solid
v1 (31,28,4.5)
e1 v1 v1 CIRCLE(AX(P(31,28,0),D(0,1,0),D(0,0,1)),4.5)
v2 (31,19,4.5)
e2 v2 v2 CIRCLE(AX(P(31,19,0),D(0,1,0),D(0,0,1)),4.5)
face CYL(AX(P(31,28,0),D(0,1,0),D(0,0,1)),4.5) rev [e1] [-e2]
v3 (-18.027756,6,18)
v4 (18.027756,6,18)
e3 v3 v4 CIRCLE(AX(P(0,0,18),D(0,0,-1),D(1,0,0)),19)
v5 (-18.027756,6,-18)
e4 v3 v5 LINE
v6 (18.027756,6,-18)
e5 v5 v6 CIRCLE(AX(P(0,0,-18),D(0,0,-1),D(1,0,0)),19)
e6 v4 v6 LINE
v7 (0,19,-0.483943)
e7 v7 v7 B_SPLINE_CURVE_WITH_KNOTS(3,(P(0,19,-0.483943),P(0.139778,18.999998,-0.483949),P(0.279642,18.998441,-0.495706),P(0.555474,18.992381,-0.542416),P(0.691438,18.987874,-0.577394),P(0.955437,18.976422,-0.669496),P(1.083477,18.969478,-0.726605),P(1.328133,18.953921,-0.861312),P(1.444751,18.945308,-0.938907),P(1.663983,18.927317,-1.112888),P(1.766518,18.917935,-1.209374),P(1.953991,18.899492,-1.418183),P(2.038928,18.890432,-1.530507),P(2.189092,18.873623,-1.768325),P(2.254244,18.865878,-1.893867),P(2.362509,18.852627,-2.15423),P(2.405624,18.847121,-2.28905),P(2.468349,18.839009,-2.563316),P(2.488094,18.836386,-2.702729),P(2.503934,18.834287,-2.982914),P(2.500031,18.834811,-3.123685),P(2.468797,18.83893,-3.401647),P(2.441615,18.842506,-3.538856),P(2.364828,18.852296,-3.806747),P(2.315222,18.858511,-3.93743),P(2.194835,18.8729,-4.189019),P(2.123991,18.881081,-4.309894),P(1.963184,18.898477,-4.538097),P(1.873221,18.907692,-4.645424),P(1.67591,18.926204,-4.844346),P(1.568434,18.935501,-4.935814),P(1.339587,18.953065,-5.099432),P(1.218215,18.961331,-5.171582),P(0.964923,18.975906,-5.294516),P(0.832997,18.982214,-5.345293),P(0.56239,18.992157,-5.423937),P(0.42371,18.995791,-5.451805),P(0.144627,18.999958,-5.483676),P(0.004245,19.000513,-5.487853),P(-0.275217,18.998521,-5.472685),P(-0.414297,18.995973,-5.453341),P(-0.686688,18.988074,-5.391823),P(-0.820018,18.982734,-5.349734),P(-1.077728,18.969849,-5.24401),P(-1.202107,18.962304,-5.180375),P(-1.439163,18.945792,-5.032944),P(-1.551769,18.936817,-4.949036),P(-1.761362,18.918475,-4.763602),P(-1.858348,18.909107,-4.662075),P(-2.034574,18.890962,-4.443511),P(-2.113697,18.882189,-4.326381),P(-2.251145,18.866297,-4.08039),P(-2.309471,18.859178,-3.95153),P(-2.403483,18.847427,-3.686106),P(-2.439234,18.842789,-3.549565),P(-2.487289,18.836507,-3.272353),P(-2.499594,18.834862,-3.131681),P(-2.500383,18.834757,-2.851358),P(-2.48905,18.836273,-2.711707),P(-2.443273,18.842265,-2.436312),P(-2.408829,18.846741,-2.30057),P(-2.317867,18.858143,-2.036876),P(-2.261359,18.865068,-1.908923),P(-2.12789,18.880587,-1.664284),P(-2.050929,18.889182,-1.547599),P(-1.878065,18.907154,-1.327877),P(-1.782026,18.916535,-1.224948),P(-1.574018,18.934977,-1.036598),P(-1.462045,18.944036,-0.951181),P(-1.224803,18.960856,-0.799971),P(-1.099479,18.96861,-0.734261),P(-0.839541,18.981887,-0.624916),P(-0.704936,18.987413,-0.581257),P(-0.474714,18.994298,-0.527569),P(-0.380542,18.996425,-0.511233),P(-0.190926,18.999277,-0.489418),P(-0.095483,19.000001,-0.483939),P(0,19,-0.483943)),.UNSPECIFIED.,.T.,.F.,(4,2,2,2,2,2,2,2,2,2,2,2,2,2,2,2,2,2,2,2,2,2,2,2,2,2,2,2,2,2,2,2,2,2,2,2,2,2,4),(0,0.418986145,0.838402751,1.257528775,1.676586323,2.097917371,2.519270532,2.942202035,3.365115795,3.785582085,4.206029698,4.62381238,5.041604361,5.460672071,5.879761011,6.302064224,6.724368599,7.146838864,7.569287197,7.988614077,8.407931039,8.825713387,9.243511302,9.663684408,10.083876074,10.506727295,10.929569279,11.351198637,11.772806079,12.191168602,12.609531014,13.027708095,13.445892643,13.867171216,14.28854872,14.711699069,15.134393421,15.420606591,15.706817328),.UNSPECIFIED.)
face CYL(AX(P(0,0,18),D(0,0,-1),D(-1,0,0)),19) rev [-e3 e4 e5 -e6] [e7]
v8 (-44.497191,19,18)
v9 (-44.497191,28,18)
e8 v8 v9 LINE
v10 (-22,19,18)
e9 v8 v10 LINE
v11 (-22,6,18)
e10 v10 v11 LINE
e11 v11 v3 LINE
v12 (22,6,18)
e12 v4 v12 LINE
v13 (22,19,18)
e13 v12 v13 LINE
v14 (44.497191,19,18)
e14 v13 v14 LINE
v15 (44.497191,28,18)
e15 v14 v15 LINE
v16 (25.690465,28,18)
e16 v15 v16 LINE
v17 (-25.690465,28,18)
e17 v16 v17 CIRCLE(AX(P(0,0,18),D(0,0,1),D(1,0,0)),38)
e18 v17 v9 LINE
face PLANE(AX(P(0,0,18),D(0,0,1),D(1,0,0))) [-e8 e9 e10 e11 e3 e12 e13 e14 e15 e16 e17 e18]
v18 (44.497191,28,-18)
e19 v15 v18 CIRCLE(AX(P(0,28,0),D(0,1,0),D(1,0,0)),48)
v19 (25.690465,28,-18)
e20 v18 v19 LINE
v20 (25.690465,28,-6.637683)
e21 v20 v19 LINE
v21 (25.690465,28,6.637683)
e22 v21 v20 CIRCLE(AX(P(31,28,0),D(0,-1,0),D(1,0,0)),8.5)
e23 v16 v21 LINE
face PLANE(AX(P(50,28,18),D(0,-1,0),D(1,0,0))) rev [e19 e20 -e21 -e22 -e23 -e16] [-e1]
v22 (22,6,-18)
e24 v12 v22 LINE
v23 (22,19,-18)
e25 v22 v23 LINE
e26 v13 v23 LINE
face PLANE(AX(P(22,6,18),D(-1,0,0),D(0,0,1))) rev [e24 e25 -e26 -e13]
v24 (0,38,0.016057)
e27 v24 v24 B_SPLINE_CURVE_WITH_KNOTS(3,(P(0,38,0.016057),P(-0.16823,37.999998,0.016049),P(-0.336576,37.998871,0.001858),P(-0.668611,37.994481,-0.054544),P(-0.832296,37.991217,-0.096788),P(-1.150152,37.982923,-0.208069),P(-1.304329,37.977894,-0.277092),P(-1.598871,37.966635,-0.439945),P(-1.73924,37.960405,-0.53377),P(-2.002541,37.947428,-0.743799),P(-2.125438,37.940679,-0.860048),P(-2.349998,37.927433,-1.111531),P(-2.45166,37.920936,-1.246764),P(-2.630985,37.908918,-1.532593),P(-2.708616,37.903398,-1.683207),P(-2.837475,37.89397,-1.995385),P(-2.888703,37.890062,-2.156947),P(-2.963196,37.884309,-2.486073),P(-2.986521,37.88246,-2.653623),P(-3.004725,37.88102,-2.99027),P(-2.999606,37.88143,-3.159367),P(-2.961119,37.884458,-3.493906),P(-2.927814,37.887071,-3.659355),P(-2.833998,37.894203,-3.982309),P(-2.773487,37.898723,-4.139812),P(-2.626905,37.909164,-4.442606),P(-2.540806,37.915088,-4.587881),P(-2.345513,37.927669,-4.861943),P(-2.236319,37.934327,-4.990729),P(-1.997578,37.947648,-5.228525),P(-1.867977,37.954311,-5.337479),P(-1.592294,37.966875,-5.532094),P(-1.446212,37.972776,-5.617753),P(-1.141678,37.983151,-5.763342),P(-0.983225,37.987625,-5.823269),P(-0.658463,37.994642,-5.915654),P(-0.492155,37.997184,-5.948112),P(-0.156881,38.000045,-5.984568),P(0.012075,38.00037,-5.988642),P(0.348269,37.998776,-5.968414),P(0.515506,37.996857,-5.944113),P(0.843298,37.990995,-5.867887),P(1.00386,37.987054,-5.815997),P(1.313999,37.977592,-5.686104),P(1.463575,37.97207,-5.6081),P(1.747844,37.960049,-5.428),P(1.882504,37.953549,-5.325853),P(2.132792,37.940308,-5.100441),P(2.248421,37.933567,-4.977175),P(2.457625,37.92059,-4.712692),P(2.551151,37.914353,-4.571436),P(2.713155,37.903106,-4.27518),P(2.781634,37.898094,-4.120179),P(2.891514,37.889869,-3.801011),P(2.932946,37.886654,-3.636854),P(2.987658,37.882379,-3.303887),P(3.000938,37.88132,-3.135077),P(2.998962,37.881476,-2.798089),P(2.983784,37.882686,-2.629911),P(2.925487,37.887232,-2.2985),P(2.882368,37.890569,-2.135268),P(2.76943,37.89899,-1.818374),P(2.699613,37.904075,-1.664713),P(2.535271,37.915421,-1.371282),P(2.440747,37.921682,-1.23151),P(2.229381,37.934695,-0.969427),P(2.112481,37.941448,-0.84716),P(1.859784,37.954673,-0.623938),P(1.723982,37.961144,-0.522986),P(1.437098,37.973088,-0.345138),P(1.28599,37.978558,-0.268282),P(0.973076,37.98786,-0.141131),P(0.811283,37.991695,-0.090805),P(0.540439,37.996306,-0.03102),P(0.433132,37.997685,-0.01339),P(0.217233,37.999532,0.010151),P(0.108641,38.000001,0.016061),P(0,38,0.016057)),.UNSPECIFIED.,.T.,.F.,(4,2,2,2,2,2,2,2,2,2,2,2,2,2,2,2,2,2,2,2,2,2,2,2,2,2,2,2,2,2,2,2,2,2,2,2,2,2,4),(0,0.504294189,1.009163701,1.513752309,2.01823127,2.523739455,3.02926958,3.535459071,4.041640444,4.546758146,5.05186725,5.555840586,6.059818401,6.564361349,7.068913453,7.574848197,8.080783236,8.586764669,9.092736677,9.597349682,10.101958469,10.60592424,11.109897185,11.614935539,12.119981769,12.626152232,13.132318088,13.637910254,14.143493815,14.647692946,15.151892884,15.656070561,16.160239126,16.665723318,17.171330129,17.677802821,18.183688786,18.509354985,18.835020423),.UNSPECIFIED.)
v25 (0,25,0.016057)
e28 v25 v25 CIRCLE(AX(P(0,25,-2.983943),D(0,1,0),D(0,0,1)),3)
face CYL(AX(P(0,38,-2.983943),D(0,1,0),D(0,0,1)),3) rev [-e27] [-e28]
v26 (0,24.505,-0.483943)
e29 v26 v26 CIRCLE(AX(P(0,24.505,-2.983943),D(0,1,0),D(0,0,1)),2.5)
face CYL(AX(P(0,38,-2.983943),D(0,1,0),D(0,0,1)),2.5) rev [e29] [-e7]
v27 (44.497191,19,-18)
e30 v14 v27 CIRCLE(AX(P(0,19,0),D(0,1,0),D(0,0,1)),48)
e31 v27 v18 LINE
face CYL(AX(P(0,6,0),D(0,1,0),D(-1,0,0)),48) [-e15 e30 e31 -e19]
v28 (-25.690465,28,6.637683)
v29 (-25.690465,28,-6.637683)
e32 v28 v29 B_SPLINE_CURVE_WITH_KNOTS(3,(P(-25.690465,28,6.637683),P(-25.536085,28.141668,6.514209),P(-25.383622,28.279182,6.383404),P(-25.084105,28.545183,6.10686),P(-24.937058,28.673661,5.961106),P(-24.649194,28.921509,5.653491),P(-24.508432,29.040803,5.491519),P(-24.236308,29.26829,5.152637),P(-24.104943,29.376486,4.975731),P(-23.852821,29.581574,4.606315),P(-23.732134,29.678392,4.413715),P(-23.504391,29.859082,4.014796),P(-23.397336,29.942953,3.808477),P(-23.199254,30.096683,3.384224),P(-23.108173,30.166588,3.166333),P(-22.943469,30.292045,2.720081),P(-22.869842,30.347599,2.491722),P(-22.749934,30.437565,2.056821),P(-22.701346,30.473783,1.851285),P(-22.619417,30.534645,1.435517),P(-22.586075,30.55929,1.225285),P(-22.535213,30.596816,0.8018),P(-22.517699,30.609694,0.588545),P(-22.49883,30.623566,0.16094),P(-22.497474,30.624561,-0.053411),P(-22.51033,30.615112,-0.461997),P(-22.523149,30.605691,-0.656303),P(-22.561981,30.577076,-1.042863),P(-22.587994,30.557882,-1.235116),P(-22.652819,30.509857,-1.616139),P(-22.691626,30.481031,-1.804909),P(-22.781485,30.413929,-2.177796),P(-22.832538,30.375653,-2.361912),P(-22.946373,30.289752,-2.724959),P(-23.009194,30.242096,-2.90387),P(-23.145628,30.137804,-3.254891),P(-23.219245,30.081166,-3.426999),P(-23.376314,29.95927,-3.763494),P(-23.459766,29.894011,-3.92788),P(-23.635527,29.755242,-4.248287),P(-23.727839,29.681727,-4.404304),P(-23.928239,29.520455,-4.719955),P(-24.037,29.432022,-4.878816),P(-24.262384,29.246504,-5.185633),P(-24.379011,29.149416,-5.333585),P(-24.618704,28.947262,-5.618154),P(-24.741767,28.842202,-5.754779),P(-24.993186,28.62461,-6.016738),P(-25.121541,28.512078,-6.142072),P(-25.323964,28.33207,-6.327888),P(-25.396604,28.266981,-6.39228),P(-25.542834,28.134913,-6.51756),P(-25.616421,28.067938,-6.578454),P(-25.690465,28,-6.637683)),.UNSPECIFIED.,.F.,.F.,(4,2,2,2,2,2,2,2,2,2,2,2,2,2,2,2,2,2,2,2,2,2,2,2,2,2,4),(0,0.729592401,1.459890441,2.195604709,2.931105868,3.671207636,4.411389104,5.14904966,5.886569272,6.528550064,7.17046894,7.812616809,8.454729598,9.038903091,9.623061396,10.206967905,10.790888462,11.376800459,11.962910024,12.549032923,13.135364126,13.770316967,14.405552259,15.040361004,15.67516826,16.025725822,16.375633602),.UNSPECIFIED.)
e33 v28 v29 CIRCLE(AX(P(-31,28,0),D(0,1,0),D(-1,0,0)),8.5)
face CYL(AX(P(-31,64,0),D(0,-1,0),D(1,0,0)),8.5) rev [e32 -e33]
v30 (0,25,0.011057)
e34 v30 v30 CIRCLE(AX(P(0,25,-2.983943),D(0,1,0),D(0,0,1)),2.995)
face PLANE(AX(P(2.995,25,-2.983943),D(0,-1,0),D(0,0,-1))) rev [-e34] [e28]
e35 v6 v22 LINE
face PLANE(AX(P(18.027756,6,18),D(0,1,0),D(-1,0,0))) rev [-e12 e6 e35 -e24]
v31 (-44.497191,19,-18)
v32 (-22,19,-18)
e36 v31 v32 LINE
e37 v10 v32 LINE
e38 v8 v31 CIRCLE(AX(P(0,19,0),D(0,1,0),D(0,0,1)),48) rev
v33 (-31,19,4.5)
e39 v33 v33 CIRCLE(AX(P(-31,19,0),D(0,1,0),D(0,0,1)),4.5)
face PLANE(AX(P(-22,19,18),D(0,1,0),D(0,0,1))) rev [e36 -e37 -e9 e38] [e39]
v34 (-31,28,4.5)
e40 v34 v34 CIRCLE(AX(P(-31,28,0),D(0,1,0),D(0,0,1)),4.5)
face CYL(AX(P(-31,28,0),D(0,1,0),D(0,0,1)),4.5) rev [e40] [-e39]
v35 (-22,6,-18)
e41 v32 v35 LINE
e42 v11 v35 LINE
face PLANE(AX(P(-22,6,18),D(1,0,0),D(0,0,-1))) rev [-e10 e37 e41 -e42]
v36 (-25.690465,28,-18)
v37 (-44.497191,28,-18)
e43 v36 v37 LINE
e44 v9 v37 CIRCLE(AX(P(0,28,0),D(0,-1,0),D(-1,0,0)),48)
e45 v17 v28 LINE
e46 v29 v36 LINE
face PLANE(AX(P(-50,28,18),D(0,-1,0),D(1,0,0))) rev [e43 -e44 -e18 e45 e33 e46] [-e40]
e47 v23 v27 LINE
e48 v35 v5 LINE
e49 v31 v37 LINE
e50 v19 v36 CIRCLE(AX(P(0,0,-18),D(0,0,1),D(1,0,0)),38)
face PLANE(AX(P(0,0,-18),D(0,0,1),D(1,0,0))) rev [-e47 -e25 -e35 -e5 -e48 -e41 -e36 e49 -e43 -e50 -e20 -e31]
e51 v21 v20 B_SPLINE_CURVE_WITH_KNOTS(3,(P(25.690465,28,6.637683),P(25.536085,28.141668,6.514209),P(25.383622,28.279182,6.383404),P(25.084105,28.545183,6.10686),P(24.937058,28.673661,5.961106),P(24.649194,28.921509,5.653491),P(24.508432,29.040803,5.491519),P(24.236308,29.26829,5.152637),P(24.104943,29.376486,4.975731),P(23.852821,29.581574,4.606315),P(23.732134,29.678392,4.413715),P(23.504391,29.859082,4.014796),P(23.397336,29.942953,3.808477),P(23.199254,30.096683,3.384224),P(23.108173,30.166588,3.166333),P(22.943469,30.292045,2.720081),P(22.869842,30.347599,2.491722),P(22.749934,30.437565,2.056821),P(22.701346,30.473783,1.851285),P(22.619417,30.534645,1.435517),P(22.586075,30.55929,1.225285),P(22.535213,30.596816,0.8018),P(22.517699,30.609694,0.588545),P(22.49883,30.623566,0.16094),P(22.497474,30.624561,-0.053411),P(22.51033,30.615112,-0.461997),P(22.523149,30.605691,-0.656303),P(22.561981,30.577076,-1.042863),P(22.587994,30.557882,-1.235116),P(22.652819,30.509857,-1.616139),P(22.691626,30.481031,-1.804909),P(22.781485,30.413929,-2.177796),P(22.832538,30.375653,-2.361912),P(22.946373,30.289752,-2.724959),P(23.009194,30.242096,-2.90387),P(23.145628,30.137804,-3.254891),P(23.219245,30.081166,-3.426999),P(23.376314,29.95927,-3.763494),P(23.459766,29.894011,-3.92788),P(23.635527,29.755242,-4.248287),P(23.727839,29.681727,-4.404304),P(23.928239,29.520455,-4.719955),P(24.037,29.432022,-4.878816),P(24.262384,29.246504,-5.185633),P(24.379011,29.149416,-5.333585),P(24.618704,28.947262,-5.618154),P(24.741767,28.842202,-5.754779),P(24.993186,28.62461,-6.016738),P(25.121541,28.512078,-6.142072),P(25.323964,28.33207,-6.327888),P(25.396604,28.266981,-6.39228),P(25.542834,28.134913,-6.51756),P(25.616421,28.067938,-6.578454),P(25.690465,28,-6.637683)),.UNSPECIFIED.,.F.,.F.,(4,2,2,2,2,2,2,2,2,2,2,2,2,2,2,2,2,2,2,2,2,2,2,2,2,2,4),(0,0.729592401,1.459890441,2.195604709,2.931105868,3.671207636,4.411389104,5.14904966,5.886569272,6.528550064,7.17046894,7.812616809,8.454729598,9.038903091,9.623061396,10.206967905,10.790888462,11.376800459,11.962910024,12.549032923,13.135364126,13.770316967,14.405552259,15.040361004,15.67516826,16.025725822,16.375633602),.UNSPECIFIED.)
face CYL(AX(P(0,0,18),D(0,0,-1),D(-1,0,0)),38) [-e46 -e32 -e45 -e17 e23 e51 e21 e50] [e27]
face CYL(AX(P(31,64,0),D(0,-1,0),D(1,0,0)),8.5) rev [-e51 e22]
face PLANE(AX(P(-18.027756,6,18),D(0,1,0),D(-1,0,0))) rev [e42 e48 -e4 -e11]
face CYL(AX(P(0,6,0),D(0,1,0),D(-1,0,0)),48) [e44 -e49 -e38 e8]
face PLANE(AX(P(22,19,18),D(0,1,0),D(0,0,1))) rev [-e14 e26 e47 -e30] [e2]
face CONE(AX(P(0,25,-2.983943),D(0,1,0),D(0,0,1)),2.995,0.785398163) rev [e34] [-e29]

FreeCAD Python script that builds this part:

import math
import FreeCAD as App
import Part
import Sketcher
Q = App.Units.Quantity


def add_polygon(sketch, points):
    """Adds a closed chain of lines whose ends are joined by coincident constraints."""
    first, n = sketch.GeometryCount, len(points)
    for a, b in zip(points, points[1:] + points[:1]):
        sketch.addGeometry(Part.LineSegment(App.Vector(*a, 0), App.Vector(*b, 0)), False)
    for i in range(n):
        sketch.addConstraint(Sketcher.Constraint("Coincident", first + i, 2, first + (i + 1) % n, 1))

doc = App.newDocument("Part")
params = doc.addObject("Spreadsheet::Sheet", "Params")
for row, (alias, value) in enumerate([
    ("sketch1_radius", "38 mm"),
    ("sketch1_radius2", "19 mm"),
    ("sketch1_width", "28 mm"),
    ("sketch1_height", "13 mm"),
    ("sketch1_height2", "9 mm"),
    ("pad1_length", "36 mm"),
    ("sketch2_radius", "48 mm"),
    ("sketch2_height", "36 mm"),
    ("sketch3_diameter", "9 mm"),
    ("hole_diameter", "9 mm"),
    ("sketch4_radius", "8.5 mm"),
    ("pocket2_length", "36 mm"),
    ("sketch5_width", "32 mm"),
    ("sketch5_width2", "13 mm"),
    ("sketch5_height", "3 mm"),
    ("sketch5_height2", "2.5 mm"),
    ("groove_angle", "360 deg"),
], start=1):
    params.set(f"A{row}", alias)
    params.set(f"B{row}", "=" + value)
    params.setAlias(f"B{row}", alias)

body = doc.addObject("PartDesign::Body", "Body")

# Sketch on XY plane
sketch1 = body.newObject("Sketcher::SketchObject", "Sketch")
sketch1.AttachmentSupport = (doc.getObject("XY_Plane"), [""])
sketch1.MapMode = "FlatFace"
sketch1.addGeometry([
    Part.LineSegment(App.Vector(18, 6, 0), App.Vector(22, 6, 0)),  # 0
    Part.LineSegment(App.Vector(22, 6, 0), App.Vector(22, 19, 0)),  # 1
    Part.LineSegment(App.Vector(22, 19, 0), App.Vector(50, 19, 0)),  # 2
    Part.LineSegment(App.Vector(50, 19, 0), App.Vector(50, 28, 0)),  # 3
    Part.LineSegment(App.Vector(50, 28, 0), App.Vector(25.7, 28, 0)),  # 4
    Part.ArcOfCircle(Part.Circle(App.Vector(0, 0, 0), App.Vector(0, 0, 1), 38), math.radians(47), math.radians(133)),  # 5
    Part.LineSegment(App.Vector(-25.7, 28, 0), App.Vector(-50, 28, 0)),  # 6
    Part.LineSegment(App.Vector(-50, 28, 0), App.Vector(-50, 19, 0)),  # 7
    Part.LineSegment(App.Vector(-50, 19, 0), App.Vector(-22, 19, 0)),  # 8
    Part.LineSegment(App.Vector(-22, 19, 0), App.Vector(-22, 6, 0)),  # 9
    Part.LineSegment(App.Vector(-22, 6, 0), App.Vector(-18, 6, 0)),  # 10
    Part.ArcOfCircle(Part.Circle(App.Vector(0, 0, 0), App.Vector(0, 0, 1), 19), math.radians(18), math.radians(162)),  # 11
], False)
sketch1.addConstraint([
    Sketcher.Constraint("Coincident", 0, 2, 1, 1),
    Sketcher.Constraint("Coincident", 1, 2, 2, 1),
    Sketcher.Constraint("Coincident", 2, 2, 3, 1),
    Sketcher.Constraint("Coincident", 3, 2, 4, 1),
    Sketcher.Constraint("Coincident", 4, 2, 5, 1),
    Sketcher.Constraint("Coincident", 5, 2, 6, 1),
    Sketcher.Constraint("Coincident", 6, 2, 7, 1),
    Sketcher.Constraint("Coincident", 7, 2, 8, 1),
    Sketcher.Constraint("Coincident", 8, 2, 9, 1),
    Sketcher.Constraint("Coincident", 9, 2, 10, 1),
    Sketcher.Constraint("Coincident", 10, 2, 11, 2),
    Sketcher.Constraint("Coincident", 11, 1, 0, 1),
    Sketcher.Constraint("Horizontal", 0),
    Sketcher.Constraint("Vertical", 1),
    Sketcher.Constraint("Horizontal", 2),
    Sketcher.Constraint("Vertical", 3),
    Sketcher.Constraint("Horizontal", 4),
    Sketcher.Constraint("Horizontal", 6),
    Sketcher.Constraint("Vertical", 7),
    Sketcher.Constraint("Horizontal", 8),
    Sketcher.Constraint("Vertical", 9),
    Sketcher.Constraint("Horizontal", 10),
    Sketcher.Constraint("Coincident", 5, 3, -1, 1),
    Sketcher.Constraint("Coincident", 11, 3, -1, 1),
    Sketcher.Constraint("Symmetric", 3, 2, 6, 2, -2),
    Sketcher.Constraint("Symmetric", 1, 2, 8, 2, -2),
    Sketcher.Constraint("Horizontal", 0, 2, 9, 2),
    Sketcher.Constraint("Radius", 5, 38.0),
    Sketcher.Constraint("Radius", 11, 19.0),
    Sketcher.Constraint("DistanceX", 2, 1, 2, 2, 28.0),
    Sketcher.Constraint("DistanceY", 1, 1, 1, 2, 13.0),
    Sketcher.Constraint("DistanceY", 3, 1, 3, 2, 9.0),
    Sketcher.Constraint("DistanceX", -1, 1, 0, 2, 22.0),
    Sketcher.Constraint("DistanceY", -1, 1, 0, 2, 6.0),
])
sketch1.setExpression("Constraints[27]", "Params.sketch1_radius")
sketch1.setExpression("Constraints[28]", "Params.sketch1_radius2")
sketch1.setExpression("Constraints[29]", "Params.sketch1_width")
sketch1.setExpression("Constraints[30]", "Params.sketch1_height")
sketch1.setExpression("Constraints[31]", "Params.sketch1_height2")
pad1 = body.newObject("PartDesign::Pad", "Pad")
pad1.Profile = sketch1
pad1.setExpression("Length", "Params.pad1_length")
pad1.Midplane = True

# Sketch on XZ plane
sketch2 = body.newObject("Sketcher::SketchObject", "Sketch001")
sketch2.AttachmentSupport = (doc.getObject("XZ_Plane"), [""])
sketch2.MapMode = "FlatFace"
sketch2.AttachmentOffset = App.Placement(App.Vector(0, 0, -28), App.Rotation())
sketch2.addGeometry([
    Part.LineSegment(App.Vector(-44, -18, 0), App.Vector(-50, -18, 0)),
    Part.LineSegment(App.Vector(-50, -18, 0), App.Vector(-50, 18, 0)),
    Part.LineSegment(App.Vector(-50, 18, 0), App.Vector(-44, 18, 0)),
    Part.ArcOfCircle(Part.Circle(App.Vector(0, 0, 0), App.Vector(0, 0, 1), 48), math.radians(158), math.radians(202)),
], False)
sketch2.addConstraint([
    Sketcher.Constraint("Coincident", 0, 2, 1, 1),
    Sketcher.Constraint("Coincident", 1, 2, 2, 1),
    Sketcher.Constraint("Coincident", 2, 2, 3, 1),
    Sketcher.Constraint("Coincident", 3, 2, 0, 1),
    Sketcher.Constraint("Horizontal", 0),
    Sketcher.Constraint("Vertical", 1),
    Sketcher.Constraint("Horizontal", 2),
    Sketcher.Constraint("Coincident", 3, 3, -1, 1),
    Sketcher.Constraint("Vertical", 2, 2, 3, 2),
    Sketcher.Constraint("Radius", 3, 48.0),
    Sketcher.Constraint("DistanceY", 1, 1, 1, 2, 36.0),
    Sketcher.Constraint("DistanceX", 0, 2, -1, 1, 50.0),
])
sketch2.setExpression("Constraints[9]", "Params.sketch2_radius")
sketch2.setExpression("Constraints[10]", "Params.sketch2_height")
pocket1 = body.newObject("PartDesign::Pocket", "Pocket")
pocket1.Profile = sketch2
pocket1.Type = "ThroughAll"
pocket1.Reversed = True

# Sketch on XZ plane
sketch3 = body.newObject("Sketcher::SketchObject", "Sketch002")
sketch3.AttachmentSupport = (doc.getObject("XZ_Plane"), [""])
sketch3.MapMode = "FlatFace"
sketch3.AttachmentOffset = App.Placement(App.Vector(0, 0, -28), App.Rotation())
sketch3.addGeometry(Part.Circle(App.Vector(-31, 0, 0), App.Vector(0, 0, 1), 4.5), False)
sketch3.addConstraint([
    Sketcher.Constraint("PointOnObject", 0, 3, -1),
    Sketcher.Constraint("Diameter", 0, 9.0),
    Sketcher.Constraint("DistanceX", 0, 3, -1, 1, 31.0),
])
sketch3.setExpression("Constraints[1]", "Params.sketch3_diameter")
doc.recompute()
hole = body.newObject("PartDesign::Hole", "Hole")
hole.Profile = sketch3
hole.ThreadType = "None"
hole.setExpression("Diameter", "Params.hole_diameter")
hole.DepthType = "ThroughAll"
hole.Reversed = True

# Sketch on XZ plane
sketch4 = body.newObject("Sketcher::SketchObject", "Sketch003")
sketch4.AttachmentSupport = (doc.getObject("XZ_Plane"), [""])
sketch4.MapMode = "FlatFace"
sketch4.AttachmentOffset = App.Placement(App.Vector(0, 0, -28), App.Rotation())
sketch4.addGeometry([
    Part.LineSegment(App.Vector(-26, -7, 0), App.Vector(-26, 7, 0)),
    Part.ArcOfCircle(Part.Circle(App.Vector(-31, 0, 0), App.Vector(0, 0, 1), 8), math.radians(-51), math.radians(51)),
], False)
sketch4.addConstraint([
    Sketcher.Constraint("Coincident", 0, 1, 1, 1),
    Sketcher.Constraint("Coincident", 1, 2, 0, 2),
    Sketcher.Constraint("Vertical", 0),
    Sketcher.Constraint("PointOnObject", 1, 3, -1),
    Sketcher.Constraint("Radius", 1, 8.5),
    Sketcher.Constraint("DistanceX", 1, 3, -1, 1, 31.0),
    Sketcher.Constraint("DistanceY", 0, 1, 0, 2, 13.275367),
])
sketch4.setExpression("Constraints[4]", "Params.sketch4_radius")
pocket2 = body.newObject("PartDesign::Pocket", "Pocket001")
pocket2.Profile = sketch4
pocket2.setExpression("Length", "Params.pocket2_length")

# Sketch on YZ plane
sketch5 = body.newObject("Sketcher::SketchObject", "Sketch004")
sketch5.AttachmentSupport = (doc.getObject("YZ_Plane"), [""])
sketch5.MapMode = "FlatFace"
add_polygon(sketch5, [(6, -2.984), (38, -2.984), (38, 0.016), (25, 0.016), (25, 0.011), (24.505, -0.484), (6, -0.484)])  # lines 0-6
sketch5.addGeometry(Part.LineSegment(App.Vector(38, -2.984, 0), App.Vector(6, -2.984, 0)), True)  # axis
sketch5.addConstraint([
    Sketcher.Constraint("Horizontal", 0),
    Sketcher.Constraint("Vertical", 1),
    Sketcher.Constraint("Horizontal", 2),
    Sketcher.Constraint("Vertical", 3),
    Sketcher.Constraint("Horizontal", 5),
    Sketcher.Constraint("Vertical", 6),
    Sketcher.Constraint("Horizontal", 7),
    Sketcher.Constraint("Coincident", 7, 1, 0, 2),
    Sketcher.Constraint("Vertical", 5, 2, 7, 2),
    Sketcher.Constraint("DistanceX", 0, 1, 0, 2, 32.0),
    Sketcher.Constraint("DistanceX", 2, 2, 2, 1, 13.0),
    Sketcher.Constraint("DistanceY", 1, 1, 1, 2, 3.0),
    Sketcher.Constraint("Angle", 4, Q("-135 deg")),
    Sketcher.Constraint("DistanceY", 6, 2, 6, 1, 2.5),
    Sketcher.Constraint("DistanceX", -1, 1, 0, 2, 38.0),
    Sketcher.Constraint("DistanceX", 5, 2, 5, 1, 18.505),
    Sketcher.Constraint("DistanceY", 0, 2, -1, 1, 2.983943),
])
sketch5.setExpression("Constraints[16]", "Params.sketch5_width")
sketch5.setExpression("Constraints[17]", "Params.sketch5_width2")
sketch5.setExpression("Constraints[18]", "Params.sketch5_height")
sketch5.setExpression("Constraints[20]", "Params.sketch5_height2")
groove = body.newObject("PartDesign::Groove", "Groove")
groove.Profile = sketch5
groove.ReferenceAxis = (sketch5, ["Axis0"])
groove.setExpression("Angle", "Params.groove_angle")
doc.recompute()

mirrored = body.newObject("PartDesign::Mirrored", "Mirrored")
mirrored.Originals = [pocket1, hole, pocket2, groove]
mirrored.MirrorPlane = (doc.getObject("YZ_Plane"), [""])
body.Tip = mirrored

doc.recompute()
